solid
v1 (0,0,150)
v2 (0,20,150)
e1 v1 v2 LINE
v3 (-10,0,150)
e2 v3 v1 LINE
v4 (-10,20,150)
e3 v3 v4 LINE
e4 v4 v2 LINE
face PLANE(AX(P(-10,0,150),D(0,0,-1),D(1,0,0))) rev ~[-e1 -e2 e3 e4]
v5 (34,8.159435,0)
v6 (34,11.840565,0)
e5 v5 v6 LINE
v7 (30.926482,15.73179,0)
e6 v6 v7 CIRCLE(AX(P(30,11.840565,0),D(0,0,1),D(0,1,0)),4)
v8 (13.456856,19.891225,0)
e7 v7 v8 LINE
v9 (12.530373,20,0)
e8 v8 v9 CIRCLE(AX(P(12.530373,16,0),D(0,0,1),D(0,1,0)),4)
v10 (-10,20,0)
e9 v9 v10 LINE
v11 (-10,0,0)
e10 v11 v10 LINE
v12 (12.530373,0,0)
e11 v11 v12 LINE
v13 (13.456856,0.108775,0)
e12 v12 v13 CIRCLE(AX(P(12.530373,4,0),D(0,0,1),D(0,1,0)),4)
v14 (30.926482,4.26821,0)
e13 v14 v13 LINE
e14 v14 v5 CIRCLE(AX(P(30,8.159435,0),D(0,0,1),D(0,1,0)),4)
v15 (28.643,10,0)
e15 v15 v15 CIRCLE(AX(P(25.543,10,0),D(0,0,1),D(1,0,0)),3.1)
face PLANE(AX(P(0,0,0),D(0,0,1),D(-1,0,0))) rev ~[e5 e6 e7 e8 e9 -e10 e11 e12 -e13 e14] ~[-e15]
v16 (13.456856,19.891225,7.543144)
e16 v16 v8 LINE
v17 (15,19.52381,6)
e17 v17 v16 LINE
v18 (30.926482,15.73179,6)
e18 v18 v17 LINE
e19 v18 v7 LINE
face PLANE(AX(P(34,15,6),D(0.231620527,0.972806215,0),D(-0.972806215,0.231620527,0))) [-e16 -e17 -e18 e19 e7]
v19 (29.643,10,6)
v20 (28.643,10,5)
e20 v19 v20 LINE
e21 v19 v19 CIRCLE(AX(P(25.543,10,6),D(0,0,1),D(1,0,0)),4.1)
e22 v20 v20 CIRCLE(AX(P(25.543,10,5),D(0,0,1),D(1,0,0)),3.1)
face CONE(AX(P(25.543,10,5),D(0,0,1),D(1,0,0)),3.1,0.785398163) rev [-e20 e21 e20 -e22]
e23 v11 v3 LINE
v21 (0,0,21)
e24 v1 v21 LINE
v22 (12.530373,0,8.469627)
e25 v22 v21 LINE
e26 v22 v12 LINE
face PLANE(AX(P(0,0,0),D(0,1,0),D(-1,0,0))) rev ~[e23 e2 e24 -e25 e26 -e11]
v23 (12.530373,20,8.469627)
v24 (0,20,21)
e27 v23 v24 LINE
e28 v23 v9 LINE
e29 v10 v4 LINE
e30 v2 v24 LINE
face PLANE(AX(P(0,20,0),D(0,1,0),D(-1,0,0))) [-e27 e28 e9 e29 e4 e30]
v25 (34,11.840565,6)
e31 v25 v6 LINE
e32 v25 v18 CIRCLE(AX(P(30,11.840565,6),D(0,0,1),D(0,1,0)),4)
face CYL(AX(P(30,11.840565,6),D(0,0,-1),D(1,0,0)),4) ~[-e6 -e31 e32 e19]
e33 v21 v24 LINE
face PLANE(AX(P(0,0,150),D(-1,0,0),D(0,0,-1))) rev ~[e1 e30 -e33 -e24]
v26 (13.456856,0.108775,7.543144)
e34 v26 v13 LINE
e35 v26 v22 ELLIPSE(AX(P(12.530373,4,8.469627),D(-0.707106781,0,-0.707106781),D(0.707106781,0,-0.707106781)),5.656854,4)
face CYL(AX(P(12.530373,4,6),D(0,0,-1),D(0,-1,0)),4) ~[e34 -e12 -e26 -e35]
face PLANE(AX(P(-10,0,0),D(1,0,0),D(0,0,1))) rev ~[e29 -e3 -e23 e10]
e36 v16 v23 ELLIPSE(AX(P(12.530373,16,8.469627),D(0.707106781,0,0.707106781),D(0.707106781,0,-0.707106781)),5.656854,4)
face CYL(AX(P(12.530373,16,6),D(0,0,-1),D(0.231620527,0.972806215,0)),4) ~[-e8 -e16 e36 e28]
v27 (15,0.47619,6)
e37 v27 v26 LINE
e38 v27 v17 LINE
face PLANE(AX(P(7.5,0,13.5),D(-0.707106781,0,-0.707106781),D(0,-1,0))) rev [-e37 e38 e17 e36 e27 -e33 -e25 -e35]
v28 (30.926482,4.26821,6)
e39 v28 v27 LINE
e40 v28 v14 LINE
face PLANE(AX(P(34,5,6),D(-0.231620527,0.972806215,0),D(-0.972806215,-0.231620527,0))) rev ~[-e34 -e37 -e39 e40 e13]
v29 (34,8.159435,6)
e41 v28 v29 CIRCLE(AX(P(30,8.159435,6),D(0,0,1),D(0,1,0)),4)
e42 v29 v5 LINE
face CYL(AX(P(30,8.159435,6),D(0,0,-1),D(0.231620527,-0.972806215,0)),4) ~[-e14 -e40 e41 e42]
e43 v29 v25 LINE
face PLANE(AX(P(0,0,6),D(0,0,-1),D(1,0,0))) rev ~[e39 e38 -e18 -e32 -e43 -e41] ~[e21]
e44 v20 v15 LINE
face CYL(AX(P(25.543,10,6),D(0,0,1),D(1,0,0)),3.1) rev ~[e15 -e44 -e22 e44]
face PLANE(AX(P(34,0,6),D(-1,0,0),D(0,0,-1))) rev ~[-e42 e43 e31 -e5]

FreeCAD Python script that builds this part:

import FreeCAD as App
import Part
import Sketcher
from FreeCAD import Vector
Q = App.Units.Quantity


def edges_at(feature, points):
    """Names of the edges that pass closest to the given points."""
    edges = feature.Shape.Edges
    near = lambda p: min(range(len(edges)), key=lambda i: edges[i].distToShape(Part.Vertex(*p))[0])
    return sorted({f"Edge{near(p) + 1}" for p in points})

doc = App.newDocument("Part")
body = doc.addObject("PartDesign::Body", "Body")

sketch1 = body.newObject("Sketcher::SketchObject", "Sketch")
sketch1.AttachmentSupport = (doc.getObject("XZ_Plane"), [""])
sketch1.MapMode = "FlatFace"
sketch1.addGeometry(Part.LineSegment(Vector(0, 150, 0), Vector(0, 6, 0)), False)
sketch1.addGeometry(Part.LineSegment(Vector(0, 6, 0), Vector(34, 6, 0)), False)
sketch1.addGeometry(Part.LineSegment(Vector(34, 6, 0), Vector(34, 0, 0)), False)
sketch1.addGeometry(Part.LineSegment(Vector(34, 0, 0), Vector(-10, 0, 0)), False)
sketch1.addGeometry(Part.LineSegment(Vector(-10, 0, 0), Vector(-10, 150, 0)), False)
sketch1.addGeometry(Part.LineSegment(Vector(-10, 150, 0), Vector(0, 150, 0)), False)
sketch1.addConstraint(Sketcher.Constraint("Coincident", 0, 2, 1, 1))
sketch1.addConstraint(Sketcher.Constraint("Coincident", 1, 2, 2, 1))
sketch1.addConstraint(Sketcher.Constraint("Coincident", 2, 2, 3, 1))
sketch1.addConstraint(Sketcher.Constraint("Coincident", 3, 2, 4, 1))
sketch1.addConstraint(Sketcher.Constraint("Coincident", 4, 2, 5, 1))
sketch1.addConstraint(Sketcher.Constraint("Coincident", 5, 2, 0, 1))
sketch1.addConstraint(Sketcher.Constraint("Vertical", 0))
sketch1.addConstraint(Sketcher.Constraint("Horizontal", 1))
sketch1.addConstraint(Sketcher.Constraint("Vertical", 2))
sketch1.addConstraint(Sketcher.Constraint("Horizontal", 3))
sketch1.addConstraint(Sketcher.Constraint("Vertical", 4))
sketch1.addConstraint(Sketcher.Constraint("Horizontal", 5))
sketch1.addConstraint(Sketcher.Constraint("PointOnObject", 0, 2, -2))
sketch1.addConstraint(Sketcher.Constraint("PointOnObject", 2, 2, -1))
sketch1.addConstraint(Sketcher.Constraint("DistanceX", 1, 1, 1, 2, Q("34 mm")))
sketch1.addConstraint(Sketcher.Constraint("DistanceX", 5, 1, 5, 2, Q("10 mm")))
sketch1.addConstraint(Sketcher.Constraint("DistanceY", 2, 2, 2, 1, Q("6 mm")))
sketch1.addConstraint(Sketcher.Constraint("DistanceY", 4, 1, 4, 2, Q("150 mm")))
pad1 = body.newObject("PartDesign::Pad", "Pad")
pad1.Profile = sketch1
pad1.Length = 20
pad1.Reversed = True

sketch2 = body.newObject("Sketcher::SketchObject", "Sketch001")
sketch2.AttachmentSupport = (doc.getObject("XY_Plane"), [""])
sketch2.MapMode = "FlatFace"
sketch2.AttachmentOffset = App.Placement(Vector(0, 0, 6), App.Rotation())
sketch2.addGeometry(Part.Circle(Vector(25.543, 10, 0), Vector(0, 0, 1), 3.1), False)
sketch2.addConstraint(Sketcher.Constraint("Diameter", 0, Q("6.2 mm")))
sketch2.addConstraint(Sketcher.Constraint("DistanceY", -1, 1, 0, 3, Q("10 mm")))
sketch2.addConstraint(Sketcher.Constraint("DistanceX", -1, 1, 0, 3, Q("25.543 mm")))
pocket1 = body.newObject("PartDesign::Pocket", "Pocket")
pocket1.Profile = sketch2
pocket1.Type = "ThroughAll"
doc.recompute()

chamfer = body.newObject("PartDesign::Chamfer", "Chamfer")
chamfer.Base = (pocket1, edges_at(pocket1, [(22.443, 10, 6)]))
chamfer.Size = 1

sketch3 = body.newObject("Sketcher::SketchObject", "Sketch002")
sketch3.AttachmentSupport = (doc.getObject("XY_Plane"), [""])
sketch3.MapMode = "FlatFace"
sketch3.AttachmentOffset = App.Placement(Vector(0, 0, 6), App.Rotation())
sketch3.addGeometry(Part.LineSegment(Vector(13, 0, 0), Vector(34, 0, 0)), False)
sketch3.addGeometry(Part.LineSegment(Vector(34, 0, 0), Vector(34, 5, 0)), False)
sketch3.addGeometry(Part.LineSegment(Vector(34, 5, 0), Vector(13, 0, 0)), False)
sketch3.addGeometry(Part.LineSegment(Vector(13, 20, 0), Vector(34, 15, 0)), False)
sketch3.addGeometry(Part.LineSegment(Vector(34, 15, 0), Vector(34, 20, 0)), False)
sketch3.addGeometry(Part.LineSegment(Vector(34, 20, 0), Vector(13, 20, 0)), False)
sketch3.addConstraint(Sketcher.Constraint("Coincident", 0, 2, 1, 1))
sketch3.addConstraint(Sketcher.Constraint("Coincident", 1, 2, 2, 1))
sketch3.addConstraint(Sketcher.Constraint("Coincident", 2, 2, 0, 1))
sketch3.addConstraint(Sketcher.Constraint("Coincident", 3, 2, 4, 1))
sketch3.addConstraint(Sketcher.Constraint("Coincident", 4, 2, 5, 1))
sketch3.addConstraint(Sketcher.Constraint("Coincident", 5, 2, 3, 1))
sketch3.addConstraint(Sketcher.Constraint("Horizontal", 0))
sketch3.addConstraint(Sketcher.Constraint("Vertical", 1))
sketch3.addConstraint(Sketcher.Constraint("Vertical", 4))
sketch3.addConstraint(Sketcher.Constraint("Horizontal", 5))
sketch3.addConstraint(Sketcher.Constraint("PointOnObject", 0, 2, -1))
sketch3.addConstraint(Sketcher.Constraint("Vertical", 1, 2, 3, 2))
sketch3.addConstraint(Sketcher.Constraint("Vertical", 2, 2, 5, 2))
sketch3.addConstraint(Sketcher.Constraint("Equal", 1, 4))
sketch3.addConstraint(Sketcher.Constraint("DistanceX", 0, 1, 0, 2, Q("21 mm")))
sketch3.addConstraint(Sketcher.Constraint("DistanceY", 1, 1, 1, 2, Q("5 mm")))
sketch3.addConstraint(Sketcher.Constraint("DistanceY", 1, 2, 3, 2, Q("10 mm")))
sketch3.addConstraint(Sketcher.Constraint("DistanceX", -1, 1, 0, 2, Q("34 mm")))
pocket2 = body.newObject("PartDesign::Pocket", "Pocket001")
pocket2.Profile = sketch3
pocket2.Type = "ThroughAll"
doc.recompute()

fillet = body.newObject("PartDesign::Fillet", "Fillet")
fillet.Base = (pocket2, edges_at(pocket2, [
    (34, 5, 3),
    (34, 15, 3),
    (13, 20, 3),
    (13, 0, 3),
]))
fillet.Radius = 4
doc.recompute()

chamfer2 = body.newObject("PartDesign::Chamfer", "Chamfer001")
chamfer2.Base = (fillet, edges_at(fillet, [(0, 10, 6)]))
chamfer2.Size = 15

doc.recompute()
